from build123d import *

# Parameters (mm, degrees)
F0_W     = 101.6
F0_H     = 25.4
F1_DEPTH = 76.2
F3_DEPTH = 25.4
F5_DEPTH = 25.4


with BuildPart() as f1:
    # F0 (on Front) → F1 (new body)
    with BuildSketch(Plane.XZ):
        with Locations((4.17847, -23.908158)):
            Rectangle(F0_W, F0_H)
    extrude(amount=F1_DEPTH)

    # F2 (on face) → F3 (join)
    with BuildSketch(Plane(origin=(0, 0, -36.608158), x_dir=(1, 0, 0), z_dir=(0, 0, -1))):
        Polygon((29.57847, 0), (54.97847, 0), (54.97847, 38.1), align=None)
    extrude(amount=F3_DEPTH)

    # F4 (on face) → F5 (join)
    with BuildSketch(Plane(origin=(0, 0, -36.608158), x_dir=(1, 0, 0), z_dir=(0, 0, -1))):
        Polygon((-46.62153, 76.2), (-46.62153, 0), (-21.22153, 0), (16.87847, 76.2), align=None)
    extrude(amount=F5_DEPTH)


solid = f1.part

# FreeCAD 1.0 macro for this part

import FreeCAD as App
import Part
import Sketcher
Q = App.Units.Quantity


def add_polygon(sketch, points):
    """Adds a closed chain of lines whose ends are joined by coincident constraints."""
    first, n = sketch.GeometryCount, len(points)
    for a, b in zip(points, points[1:] + points[:1]):
        sketch.addGeometry(Part.LineSegment(App.Vector(*a, 0), App.Vector(*b, 0)), False)
    for i in range(n):
        sketch.addConstraint(Sketcher.Constraint("Coincident", first + i, 2, first + (i + 1) % n, 1))

doc = App.newDocument("Part")
body = doc.addObject("PartDesign::Body", "Body")

# Sketch on XZ plane
sketch1 = doc.addObject("Sketcher::SketchObject", "Sketch")
body.addObject(sketch1)
sketch1.AttachmentSupport = (doc.XZ_Plane, [""])
sketch1.MapMode = "FlatFace"
add_polygon(sketch1, [(-47, -11), (-47, -37), (55, -37), (55, -11)])  # lines 0-3
sketch1.addConstraint([
    Sketcher.Constraint("Vertical", 0),
    Sketcher.Constraint("Horizontal", 1),
    Sketcher.Constraint("Vertical", 2),
    Sketcher.Constraint("Horizontal", 3),
    Sketcher.Constraint("DistanceX", 1, 1, 1, 2, Q("4 in")),
    Sketcher.Constraint("DistanceY", 0, 2, 0, 1, Q("1 in")),
    Sketcher.Constraint("DistanceX", 0, 2, -1, 1, Q("46.62153 mm")),
    Sketcher.Constraint("DistanceY", 0, 2, -1, 1, Q("36.608158 mm")),
])
pad1 = doc.addObject("PartDesign::Pad", "Pad")
body.addObject(pad1)
pad1.Profile = sketch1
pad1.Length = Q("3 in")

# Sketch on XY plane
sketch2 = doc.addObject("Sketcher::SketchObject", "Sketch001")
body.addObject(sketch2)
sketch2.AttachmentSupport = (doc.XY_Plane, [""])
sketch2.MapMode = "FlatFace"
sketch2.AttachmentOffset = App.Placement(App.Vector(0, 0, -36.608158), App.Rotation())
add_polygon(sketch2, [(30, 0), (55, 0), (55, -38)])  # lines 0-2
sketch2.addConstraint([
    Sketcher.Constraint("Horizontal", 0),
    Sketcher.Constraint("Vertical", 1),
    Sketcher.Constraint("PointOnObject", 0, 2, -1),
    Sketcher.Constraint("DistanceX", 0, 1, 0, 2, Q("1 in")),
    Sketcher.Constraint("DistanceY", 1, 2, 1, 1, Q("1.5 in")),
    Sketcher.Constraint("DistanceX", -1, 1, 0, 2, Q("54.97847 mm")),
])
pad2 = doc.addObject("PartDesign::Pad", "Pad001")
body.addObject(pad2)
pad2.Profile = sketch2
pad2.Length = Q("1 in")
pad2.Reversed = True

# Sketch on XY plane
sketch3 = doc.addObject("Sketcher::SketchObject", "Sketch002")
body.addObject(sketch3)
sketch3.AttachmentSupport = (doc.XY_Plane, [""])
sketch3.MapMode = "FlatFace"
sketch3.AttachmentOffset = App.Placement(App.Vector(0, 0, -36.608158), App.Rotation())
add_polygon(sketch3, [(-47, -76), (-47, 0), (-21, 0), (17, -76)])  # lines 0-3
sketch3.addConstraint([
    Sketcher.Constraint("Vertical", 0),
    Sketcher.Constraint("Horizontal", 1),
    Sketcher.Constraint("Horizontal", 3),
    Sketcher.Constraint("PointOnObject", 0, 2, -1),
    Sketcher.Constraint("DistanceX", 1, 1, 1, 2, Q("1 in")),
    Sketcher.Constraint("DistanceY", 0, 1, 0, 2, Q("3 in")),
    Sketcher.Constraint("DistanceX", 3, 2, 3, 1, Q("2.5 in")),
    Sketcher.Constraint("DistanceX", 0, 2, -1, 1, Q("46.62153 mm")),
])
pad3 = doc.addObject("PartDesign::Pad", "Pad002")
body.addObject(pad3)
pad3.Profile = sketch3
pad3.Length = Q("1 in")
pad3.Reversed = True

doc.recompute()
